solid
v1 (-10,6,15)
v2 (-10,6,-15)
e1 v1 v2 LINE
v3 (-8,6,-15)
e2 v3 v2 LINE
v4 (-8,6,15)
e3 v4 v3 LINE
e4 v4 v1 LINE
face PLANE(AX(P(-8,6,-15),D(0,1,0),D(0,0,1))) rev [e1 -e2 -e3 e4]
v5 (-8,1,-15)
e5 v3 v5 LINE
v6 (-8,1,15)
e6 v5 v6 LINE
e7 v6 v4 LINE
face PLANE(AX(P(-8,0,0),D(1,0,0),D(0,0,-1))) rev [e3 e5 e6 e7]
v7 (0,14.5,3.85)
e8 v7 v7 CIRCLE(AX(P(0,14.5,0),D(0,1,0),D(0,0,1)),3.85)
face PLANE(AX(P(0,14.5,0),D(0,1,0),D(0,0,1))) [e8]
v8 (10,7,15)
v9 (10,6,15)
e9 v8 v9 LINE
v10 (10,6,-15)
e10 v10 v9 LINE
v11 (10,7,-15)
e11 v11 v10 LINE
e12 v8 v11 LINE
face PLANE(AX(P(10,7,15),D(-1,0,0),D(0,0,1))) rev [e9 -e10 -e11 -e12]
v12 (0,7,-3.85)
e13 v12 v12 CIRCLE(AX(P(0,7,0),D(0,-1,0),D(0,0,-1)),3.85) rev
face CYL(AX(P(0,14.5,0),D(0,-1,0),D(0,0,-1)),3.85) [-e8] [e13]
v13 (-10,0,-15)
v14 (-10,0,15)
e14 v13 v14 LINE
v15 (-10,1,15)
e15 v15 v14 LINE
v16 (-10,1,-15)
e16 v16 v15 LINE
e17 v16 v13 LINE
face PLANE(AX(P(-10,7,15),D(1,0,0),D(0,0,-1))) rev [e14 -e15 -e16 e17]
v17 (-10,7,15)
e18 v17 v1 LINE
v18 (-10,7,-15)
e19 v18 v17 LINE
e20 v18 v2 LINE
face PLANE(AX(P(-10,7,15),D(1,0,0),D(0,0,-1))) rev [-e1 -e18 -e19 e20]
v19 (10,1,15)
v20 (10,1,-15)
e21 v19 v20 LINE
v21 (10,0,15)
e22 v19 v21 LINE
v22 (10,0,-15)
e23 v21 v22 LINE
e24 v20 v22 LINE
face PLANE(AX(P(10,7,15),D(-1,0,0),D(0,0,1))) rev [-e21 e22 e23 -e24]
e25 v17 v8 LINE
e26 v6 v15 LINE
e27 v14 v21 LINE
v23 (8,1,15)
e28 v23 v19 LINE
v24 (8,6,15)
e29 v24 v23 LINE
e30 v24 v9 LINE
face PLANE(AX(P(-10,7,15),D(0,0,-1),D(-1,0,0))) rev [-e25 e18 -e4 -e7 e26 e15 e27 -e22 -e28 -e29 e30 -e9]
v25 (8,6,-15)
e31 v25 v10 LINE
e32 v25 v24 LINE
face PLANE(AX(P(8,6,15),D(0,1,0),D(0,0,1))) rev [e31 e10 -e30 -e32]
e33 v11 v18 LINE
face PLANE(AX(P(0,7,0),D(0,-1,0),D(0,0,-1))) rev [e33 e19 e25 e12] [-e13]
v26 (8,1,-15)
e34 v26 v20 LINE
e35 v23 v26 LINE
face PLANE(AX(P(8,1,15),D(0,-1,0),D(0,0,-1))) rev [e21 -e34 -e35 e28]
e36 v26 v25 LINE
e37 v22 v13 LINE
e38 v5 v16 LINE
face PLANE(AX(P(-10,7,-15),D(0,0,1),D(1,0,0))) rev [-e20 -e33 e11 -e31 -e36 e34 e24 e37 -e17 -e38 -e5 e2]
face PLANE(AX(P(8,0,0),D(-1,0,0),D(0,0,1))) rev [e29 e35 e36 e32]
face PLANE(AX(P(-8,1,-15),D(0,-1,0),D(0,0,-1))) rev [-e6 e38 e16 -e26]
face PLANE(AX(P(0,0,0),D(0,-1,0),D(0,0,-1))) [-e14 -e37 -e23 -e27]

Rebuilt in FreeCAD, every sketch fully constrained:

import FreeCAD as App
import Part
import Sketcher
from FreeCAD import Vector


def add_polygon(sketch, points):
    """Adds a closed chain of lines whose ends are joined by coincident constraints."""
    first, n = sketch.GeometryCount, len(points)
    for a, b in zip(points, points[1:] + points[:1]):
        sketch.addGeometry(Part.LineSegment(App.Vector(*a, 0), App.Vector(*b, 0)), False)
    for i in range(n):
        sketch.addConstraint(Sketcher.Constraint("Coincident", first + i, 2, first + (i + 1) % n, 1))

doc = App.newDocument("Part")
body = doc.addObject("PartDesign::Body", "Body")

# Sketch on XZ plane
sketch1 = body.newObject("Sketcher::SketchObject", "Sketch")
sketch1.AttachmentSupport = (doc.getObject("XZ_Plane"), [""])
sketch1.MapMode = "FlatFace"
add_polygon(sketch1, [(-10, -15), (-10, 15), (10, 15), (10, -15)])  # lines 0-3
sketch1.addConstraint(Sketcher.Constraint("Vertical", 0))
sketch1.addConstraint(Sketcher.Constraint("Horizontal", 1))
sketch1.addConstraint(Sketcher.Constraint("Vertical", 2))
sketch1.addConstraint(Sketcher.Constraint("Horizontal", 3))
sketch1.addConstraint(Sketcher.Constraint("Symmetric", 0, 2, 2, 2, -1, 1))
sketch1.addConstraint(Sketcher.Constraint("DistanceX", 1, 1, 1, 2, 20.0))
sketch1.addConstraint(Sketcher.Constraint("DistanceY", 0, 1, 0, 2, 30.0))
pad1 = body.newObject("PartDesign::Pad", "Pad")
pad1.Profile = sketch1
pad1.Length = 7
pad1.Reversed = True

# Sketch on YZ plane
sketch2 = body.newObject("Sketcher::SketchObject", "Sketch001")
sketch2.AttachmentSupport = (doc.getObject("YZ_Plane"), [""])
sketch2.MapMode = "FlatFace"
sketch2.AttachmentOffset = App.Placement(Vector(0, 0, 10), App.Rotation())
add_polygon(sketch2, [(6, 15), (1, 15), (1, -15), (6, -15)])  # lines 0-3
sketch2.addConstraint(Sketcher.Constraint("Horizontal", 0))
sketch2.addConstraint(Sketcher.Constraint("Vertical", 1))
sketch2.addConstraint(Sketcher.Constraint("Horizontal", 2))
sketch2.addConstraint(Sketcher.Constraint("Vertical", 3))
sketch2.addConstraint(Sketcher.Constraint("DistanceX", 0, 2, 0, 1, 5.0))
sketch2.addConstraint(Sketcher.Constraint("DistanceY", 1, 2, 1, 1, 30.0))
sketch2.addConstraint(Sketcher.Constraint("DistanceX", -1, 1, 0, 2, 1.0))
sketch2.addConstraint(Sketcher.Constraint("DistanceY", -1, 1, 0, 2, 15.0))
pocket1 = body.newObject("PartDesign::Pocket", "Pocket")
pocket1.Profile = sketch2
pocket1.Length = 2

# Sketch on YZ plane
sketch3 = body.newObject("Sketcher::SketchObject", "Sketch002")
sketch3.AttachmentSupport = (doc.getObject("YZ_Plane"), [""])
sketch3.MapMode = "FlatFace"
sketch3.AttachmentOffset = App.Placement(Vector(0, 0, -10), App.Rotation())
add_polygon(sketch3, [(6, -15), (1, -15), (1, 15), (6, 15)])  # lines 0-3
sketch3.addConstraint(Sketcher.Constraint("Horizontal", 0))
sketch3.addConstraint(Sketcher.Constraint("Vertical", 1))
sketch3.addConstraint(Sketcher.Constraint("Horizontal", 2))
sketch3.addConstraint(Sketcher.Constraint("Vertical", 3))
sketch3.addConstraint(Sketcher.Constraint("DistanceX", 0, 2, 0, 1, 5.0))
sketch3.addConstraint(Sketcher.Constraint("DistanceY", 1, 1, 1, 2, 30.0))
sketch3.addConstraint(Sketcher.Constraint("DistanceX", -1, 1, 0, 2, 1.0))
sketch3.addConstraint(Sketcher.Constraint("DistanceY", 0, 2, -1, 1, 15.0))
pocket2 = body.newObject("PartDesign::Pocket", "Pocket001")
pocket2.Profile = sketch3
pocket2.Length = 2
pocket2.Reversed = True

# Sketch on XZ plane
sketch4 = body.newObject("Sketcher::SketchObject", "Sketch003")
sketch4.AttachmentSupport = (doc.getObject("XZ_Plane"), [""])
sketch4.MapMode = "FlatFace"
sketch4.AttachmentOffset = App.Placement(Vector(0, 0, -7), App.Rotation())
sketch4.addGeometry(Part.Circle(Vector(0, 0, 0), Vector(0, 0, 1), 3.9), False)
sketch4.addConstraint(Sketcher.Constraint("Coincident", 0, 3, -1, 1))
sketch4.addConstraint(Sketcher.Constraint("Diameter", 0, 7.7))
pad2 = body.newObject("PartDesign::Pad", "Pad001")
pad2.Profile = sketch4
pad2.Length = 7.5
pad2.Reversed = True

doc.recompute()
